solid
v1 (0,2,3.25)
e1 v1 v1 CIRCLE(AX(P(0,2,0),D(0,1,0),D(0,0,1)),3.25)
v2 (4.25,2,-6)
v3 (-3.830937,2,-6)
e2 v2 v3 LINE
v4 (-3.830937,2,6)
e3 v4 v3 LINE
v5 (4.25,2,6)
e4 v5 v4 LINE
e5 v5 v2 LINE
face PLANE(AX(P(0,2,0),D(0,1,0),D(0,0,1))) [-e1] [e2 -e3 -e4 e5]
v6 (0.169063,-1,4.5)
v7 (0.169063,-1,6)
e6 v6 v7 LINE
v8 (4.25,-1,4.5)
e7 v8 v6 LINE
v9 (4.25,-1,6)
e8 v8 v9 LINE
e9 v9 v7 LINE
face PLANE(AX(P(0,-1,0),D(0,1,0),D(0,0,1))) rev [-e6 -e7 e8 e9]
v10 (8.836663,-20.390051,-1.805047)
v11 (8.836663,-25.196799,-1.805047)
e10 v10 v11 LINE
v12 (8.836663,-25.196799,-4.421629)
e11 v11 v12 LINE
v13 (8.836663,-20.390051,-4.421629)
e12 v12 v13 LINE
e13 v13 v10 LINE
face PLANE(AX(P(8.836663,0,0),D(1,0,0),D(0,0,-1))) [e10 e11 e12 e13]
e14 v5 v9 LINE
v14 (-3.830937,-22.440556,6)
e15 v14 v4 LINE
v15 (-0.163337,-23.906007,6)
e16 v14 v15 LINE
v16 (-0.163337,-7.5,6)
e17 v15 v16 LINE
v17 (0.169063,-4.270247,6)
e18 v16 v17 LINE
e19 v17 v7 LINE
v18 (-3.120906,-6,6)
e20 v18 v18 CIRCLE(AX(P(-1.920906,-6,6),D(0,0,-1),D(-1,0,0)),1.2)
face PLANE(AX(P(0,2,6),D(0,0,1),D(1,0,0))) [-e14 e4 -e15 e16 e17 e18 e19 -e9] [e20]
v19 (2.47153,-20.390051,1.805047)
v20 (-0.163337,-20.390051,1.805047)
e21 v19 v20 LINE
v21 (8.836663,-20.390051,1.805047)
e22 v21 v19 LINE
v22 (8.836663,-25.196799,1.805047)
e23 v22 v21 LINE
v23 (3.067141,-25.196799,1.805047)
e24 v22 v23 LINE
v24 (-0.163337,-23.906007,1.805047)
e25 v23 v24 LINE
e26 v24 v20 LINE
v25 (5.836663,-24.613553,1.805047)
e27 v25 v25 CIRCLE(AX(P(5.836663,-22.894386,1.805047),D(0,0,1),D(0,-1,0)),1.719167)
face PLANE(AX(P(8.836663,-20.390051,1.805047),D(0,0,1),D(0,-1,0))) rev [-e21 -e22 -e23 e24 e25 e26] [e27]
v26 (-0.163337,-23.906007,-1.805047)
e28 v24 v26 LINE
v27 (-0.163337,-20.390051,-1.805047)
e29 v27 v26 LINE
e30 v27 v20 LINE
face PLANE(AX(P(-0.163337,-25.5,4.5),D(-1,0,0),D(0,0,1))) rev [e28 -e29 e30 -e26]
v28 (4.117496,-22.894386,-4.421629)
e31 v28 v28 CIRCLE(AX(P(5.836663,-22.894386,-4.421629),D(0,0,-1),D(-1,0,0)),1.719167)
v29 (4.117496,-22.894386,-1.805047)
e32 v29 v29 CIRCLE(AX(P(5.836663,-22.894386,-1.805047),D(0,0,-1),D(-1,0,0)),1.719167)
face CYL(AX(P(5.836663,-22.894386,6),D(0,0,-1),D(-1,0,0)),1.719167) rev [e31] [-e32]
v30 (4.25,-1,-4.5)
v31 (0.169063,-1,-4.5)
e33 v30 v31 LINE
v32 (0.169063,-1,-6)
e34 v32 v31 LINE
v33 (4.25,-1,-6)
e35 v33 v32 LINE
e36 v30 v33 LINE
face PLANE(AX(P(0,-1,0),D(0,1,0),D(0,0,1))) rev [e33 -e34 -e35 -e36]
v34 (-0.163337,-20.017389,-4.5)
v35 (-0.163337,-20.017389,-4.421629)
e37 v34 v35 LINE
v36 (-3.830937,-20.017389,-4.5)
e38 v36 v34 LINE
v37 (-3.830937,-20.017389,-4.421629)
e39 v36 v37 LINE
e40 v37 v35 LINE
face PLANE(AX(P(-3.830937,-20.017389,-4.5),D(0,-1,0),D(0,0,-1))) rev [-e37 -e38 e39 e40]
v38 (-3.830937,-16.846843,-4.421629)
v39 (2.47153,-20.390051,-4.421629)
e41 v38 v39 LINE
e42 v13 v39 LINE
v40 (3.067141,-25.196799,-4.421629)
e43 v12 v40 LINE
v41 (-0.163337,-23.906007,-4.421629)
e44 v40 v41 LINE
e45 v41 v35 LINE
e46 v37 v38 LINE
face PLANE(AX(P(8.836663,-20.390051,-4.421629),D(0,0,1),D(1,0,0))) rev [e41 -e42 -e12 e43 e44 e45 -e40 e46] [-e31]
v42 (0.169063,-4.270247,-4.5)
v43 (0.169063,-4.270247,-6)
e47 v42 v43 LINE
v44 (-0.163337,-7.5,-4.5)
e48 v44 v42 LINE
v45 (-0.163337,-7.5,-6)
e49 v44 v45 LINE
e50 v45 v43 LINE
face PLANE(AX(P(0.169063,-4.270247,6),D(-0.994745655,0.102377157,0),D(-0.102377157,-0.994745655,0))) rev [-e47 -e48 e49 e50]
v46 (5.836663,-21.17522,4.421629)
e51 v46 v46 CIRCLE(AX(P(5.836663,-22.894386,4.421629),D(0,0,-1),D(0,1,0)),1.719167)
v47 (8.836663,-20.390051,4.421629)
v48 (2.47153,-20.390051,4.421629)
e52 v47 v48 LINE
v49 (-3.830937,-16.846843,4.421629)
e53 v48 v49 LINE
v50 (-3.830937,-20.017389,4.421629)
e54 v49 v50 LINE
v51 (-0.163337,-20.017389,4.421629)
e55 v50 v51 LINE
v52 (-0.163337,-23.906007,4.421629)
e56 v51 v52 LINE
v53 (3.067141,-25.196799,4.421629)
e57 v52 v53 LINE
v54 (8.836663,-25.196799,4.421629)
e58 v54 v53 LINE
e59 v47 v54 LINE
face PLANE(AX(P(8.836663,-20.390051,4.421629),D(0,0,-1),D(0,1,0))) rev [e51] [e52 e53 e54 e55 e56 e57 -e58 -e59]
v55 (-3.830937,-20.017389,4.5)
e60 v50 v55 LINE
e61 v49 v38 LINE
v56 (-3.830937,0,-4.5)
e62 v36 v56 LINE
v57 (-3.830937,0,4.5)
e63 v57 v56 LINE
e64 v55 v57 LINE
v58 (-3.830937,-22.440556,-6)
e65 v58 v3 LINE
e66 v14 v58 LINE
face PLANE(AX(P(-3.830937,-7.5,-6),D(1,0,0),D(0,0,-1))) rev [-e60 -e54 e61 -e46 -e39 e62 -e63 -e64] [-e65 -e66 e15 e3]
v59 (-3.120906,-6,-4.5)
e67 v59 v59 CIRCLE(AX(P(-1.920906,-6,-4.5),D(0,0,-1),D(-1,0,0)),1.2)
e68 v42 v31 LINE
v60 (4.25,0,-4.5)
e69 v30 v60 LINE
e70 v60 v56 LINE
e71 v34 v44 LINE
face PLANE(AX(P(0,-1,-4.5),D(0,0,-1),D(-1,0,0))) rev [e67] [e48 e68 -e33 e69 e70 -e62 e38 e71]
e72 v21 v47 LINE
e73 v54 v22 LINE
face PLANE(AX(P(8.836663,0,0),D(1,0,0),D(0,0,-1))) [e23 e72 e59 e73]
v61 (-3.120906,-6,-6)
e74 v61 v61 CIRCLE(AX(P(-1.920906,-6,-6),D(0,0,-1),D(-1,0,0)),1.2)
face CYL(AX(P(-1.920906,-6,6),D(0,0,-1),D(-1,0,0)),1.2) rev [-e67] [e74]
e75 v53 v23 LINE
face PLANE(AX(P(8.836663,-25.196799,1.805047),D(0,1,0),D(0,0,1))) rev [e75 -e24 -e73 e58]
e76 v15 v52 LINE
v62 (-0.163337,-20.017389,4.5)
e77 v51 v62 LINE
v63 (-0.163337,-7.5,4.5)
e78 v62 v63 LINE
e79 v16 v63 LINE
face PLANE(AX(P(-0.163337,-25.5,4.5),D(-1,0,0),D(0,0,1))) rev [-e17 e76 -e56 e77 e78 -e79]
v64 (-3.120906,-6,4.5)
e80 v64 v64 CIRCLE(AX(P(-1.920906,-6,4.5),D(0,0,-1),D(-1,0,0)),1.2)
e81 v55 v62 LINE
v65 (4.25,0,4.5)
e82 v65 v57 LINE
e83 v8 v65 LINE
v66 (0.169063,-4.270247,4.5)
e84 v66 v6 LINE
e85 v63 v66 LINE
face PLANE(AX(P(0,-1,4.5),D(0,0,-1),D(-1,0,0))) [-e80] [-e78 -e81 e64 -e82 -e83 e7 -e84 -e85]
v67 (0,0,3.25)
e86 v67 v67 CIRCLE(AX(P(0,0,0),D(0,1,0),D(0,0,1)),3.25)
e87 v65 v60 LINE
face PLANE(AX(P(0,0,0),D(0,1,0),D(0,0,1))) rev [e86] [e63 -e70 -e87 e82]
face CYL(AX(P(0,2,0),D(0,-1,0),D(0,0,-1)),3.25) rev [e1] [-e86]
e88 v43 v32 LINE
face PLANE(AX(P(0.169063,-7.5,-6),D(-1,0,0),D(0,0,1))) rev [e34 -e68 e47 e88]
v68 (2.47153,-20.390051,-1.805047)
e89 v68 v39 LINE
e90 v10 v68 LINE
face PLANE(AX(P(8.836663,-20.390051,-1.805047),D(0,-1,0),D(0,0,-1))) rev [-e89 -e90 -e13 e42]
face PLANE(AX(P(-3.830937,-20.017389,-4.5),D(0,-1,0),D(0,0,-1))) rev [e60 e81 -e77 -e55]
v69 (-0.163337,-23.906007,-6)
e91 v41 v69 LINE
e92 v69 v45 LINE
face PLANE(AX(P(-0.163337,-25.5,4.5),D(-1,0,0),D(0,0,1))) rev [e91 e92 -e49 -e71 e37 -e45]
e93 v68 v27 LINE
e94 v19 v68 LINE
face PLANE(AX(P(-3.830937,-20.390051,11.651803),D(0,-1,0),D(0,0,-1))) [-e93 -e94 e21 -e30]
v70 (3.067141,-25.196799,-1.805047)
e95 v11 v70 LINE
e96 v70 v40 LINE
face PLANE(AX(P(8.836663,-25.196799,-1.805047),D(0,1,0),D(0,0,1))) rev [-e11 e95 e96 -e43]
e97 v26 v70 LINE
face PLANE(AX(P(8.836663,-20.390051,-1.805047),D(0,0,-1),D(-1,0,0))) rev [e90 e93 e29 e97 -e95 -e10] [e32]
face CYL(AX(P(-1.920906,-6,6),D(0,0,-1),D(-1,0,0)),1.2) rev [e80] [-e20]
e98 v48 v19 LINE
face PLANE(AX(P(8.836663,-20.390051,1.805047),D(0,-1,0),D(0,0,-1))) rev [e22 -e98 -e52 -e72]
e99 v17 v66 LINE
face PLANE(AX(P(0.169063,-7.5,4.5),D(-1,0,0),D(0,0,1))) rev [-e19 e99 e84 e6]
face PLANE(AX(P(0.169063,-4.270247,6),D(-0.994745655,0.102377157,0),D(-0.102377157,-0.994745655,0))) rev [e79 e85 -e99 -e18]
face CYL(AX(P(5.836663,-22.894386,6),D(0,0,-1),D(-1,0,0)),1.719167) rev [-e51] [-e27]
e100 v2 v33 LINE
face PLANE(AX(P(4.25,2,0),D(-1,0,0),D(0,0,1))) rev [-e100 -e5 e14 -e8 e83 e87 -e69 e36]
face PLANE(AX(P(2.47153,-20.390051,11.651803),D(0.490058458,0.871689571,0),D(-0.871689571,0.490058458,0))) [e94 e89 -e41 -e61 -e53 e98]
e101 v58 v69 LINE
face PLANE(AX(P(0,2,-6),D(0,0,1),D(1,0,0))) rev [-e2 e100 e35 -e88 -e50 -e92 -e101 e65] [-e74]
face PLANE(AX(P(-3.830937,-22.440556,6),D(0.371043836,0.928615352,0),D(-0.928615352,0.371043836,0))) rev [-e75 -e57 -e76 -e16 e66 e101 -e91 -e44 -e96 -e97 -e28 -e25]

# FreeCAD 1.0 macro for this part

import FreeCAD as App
import Part
import Sketcher

V = App.Vector
Q = App.Units.Quantity


def add_polygon(sketch, points):
    """Adds a closed chain of lines whose ends are joined by coincident constraints."""
    first, n = sketch.GeometryCount, len(points)
    for a, b in zip(points, points[1:] + points[:1]):
        sketch.addGeometry(Part.LineSegment(App.Vector(*a, 0), App.Vector(*b, 0)), False)
    for i in range(n):
        sketch.addConstraint(Sketcher.Constraint("Coincident", first + i, 2, first + (i + 1) % n, 1))

doc = App.newDocument("Part")
body = doc.addObject("PartDesign::Body", "Body")

sketch1 = doc.addObject("Sketcher::SketchObject", "Sketch")
body.addObject(sketch1)
sketch1.AttachmentSupport = (doc.XZ_Plane, [""])
sketch1.MapMode = "FlatFace"
add_polygon(sketch1, [(-4.25, 6), (4.25, 6), (4.25, -6), (-4.25, -6)])
sketch1.addGeometry(Part.Circle(V(0, 0, 0), V(0, 0, 1), 3.25), False)
sketch1.addConstraint([
    Sketcher.Constraint("Horizontal", 0),
    Sketcher.Constraint("Vertical", 1),
    Sketcher.Constraint("Horizontal", 2),
    Sketcher.Constraint("Vertical", 3),
    Sketcher.Constraint("Coincident", 4, 3, -1, 1),
    Sketcher.Constraint("Symmetric", 0, 2, 2, 2, -1, 1),
    Sketcher.Constraint("Diameter", 4, Q("6.5 mm")),
    Sketcher.Constraint("DistanceY", 1, 2, 1, 1, Q("12 mm")),
    Sketcher.Constraint("DistanceX", 0, 1, 0, 2, Q("8.5 mm")),
])
pad1 = doc.addObject("PartDesign::Pad", "Pad")
body.addObject(pad1)
pad1.Profile = sketch1
pad1.Length = 2
pad1.Reversed = True

sketch2 = doc.addObject("Sketcher::SketchObject", "Sketch001")
body.addObject(sketch2)
sketch2.AttachmentSupport = (doc.XZ_Plane, [""])
sketch2.MapMode = "FlatFace"
add_polygon(sketch2, [(-4.25, 4.5), (-4.25, 6), (4.25, 6), (4.25, 4.5)])
add_polygon(sketch2, [(-4.25, -6), (-4.25, -4.5), (4.25, -4.5), (4.25, -6)])
sketch2.addConstraint([
    Sketcher.Constraint("Vertical", 0),
    Sketcher.Constraint("Horizontal", 1),
    Sketcher.Constraint("Vertical", 2),
    Sketcher.Constraint("Horizontal", 3),
    Sketcher.Constraint("Vertical", 4),
    Sketcher.Constraint("Horizontal", 5),
    Sketcher.Constraint("Vertical", 6),
    Sketcher.Constraint("Horizontal", 7),
    Sketcher.Constraint("Symmetric", 2, 2, 4, 2, -1, 1),
    Sketcher.Constraint("Symmetric", 0, 2, 6, 2, -1, 1),
    Sketcher.Constraint("Vertical", 3, 2, 4, 2),
    Sketcher.Constraint("DistanceX", 1, 1, 1, 2, Q("8.5 mm")),
    Sketcher.Constraint("DistanceY", 0, 1, 0, 2, Q("1.5 mm")),
    Sketcher.Constraint("DistanceY", -1, 1, 0, 2, Q("6 mm")),
])
pad2 = doc.addObject("PartDesign::Pad", "Pad001")
body.addObject(pad2)
pad2.Profile = sketch2
pad2.Length = 1

sketch3 = doc.addObject("Sketcher::SketchObject", "Sketch002")
body.addObject(sketch3)
sketch3.AttachmentSupport = (doc.XZ_Plane, [""])
sketch3.MapMode = "FlatFace"
sketch3.AttachmentOffset = App.Placement(V(0, 0, 1), App.Rotation())
add_polygon(sketch3, [(-3.830937, -4.5), (-3.830937, -6), (0.169063, -6), (0.169063, -4.5)])
add_polygon(sketch3, [(-3.830937, 6), (-3.830937, 4.5), (0.169063, 4.5), (0.169063, 6)])
sketch3.addConstraint([
    Sketcher.Constraint("Vertical", 0),
    Sketcher.Constraint("Horizontal", 1),
    Sketcher.Constraint("Vertical", 2),
    Sketcher.Constraint("Horizontal", 3),
    Sketcher.Constraint("Vertical", 4),
    Sketcher.Constraint("Horizontal", 5),
    Sketcher.Constraint("Vertical", 6),
    Sketcher.Constraint("Horizontal", 7),
    Sketcher.Constraint("Symmetric", 3, 2, 4, 2, -1),
    Sketcher.Constraint("Symmetric", 1, 2, 6, 2, -1),
    Sketcher.Constraint("DistanceX", 1, 1, 1, 2, Q("4 mm")),
    Sketcher.Constraint("DistanceY", 0, 2, 0, 1, Q("1.5 mm")),
    Sketcher.Constraint("DistanceY", 0, 2, -1, 1, Q("6 mm")),
    Sketcher.Constraint("DistanceX", 0, 2, -1, 1, Q("3.830937 mm")),
])
pad3 = doc.addObject("PartDesign::Pad", "Pad002")
body.addObject(pad3)
pad3.Profile = sketch3
pad3.Length = 6.5

sketch4 = doc.addObject("Sketcher::SketchObject", "Sketch003")
body.addObject(sketch4)
sketch4.AttachmentSupport = (doc.XY_Plane, [""])
sketch4.MapMode = "FlatFace"
sketch4.AttachmentOffset = App.Placement(V(0, 0, -6), App.Rotation())
add_polygon(sketch4, [(-0.163337, -7.5), (0.169063, -4.270247), (0.169063, -7.5)])
sketch4.addConstraint([
    Sketcher.Constraint("Vertical", 1),
    Sketcher.Constraint("Horizontal", 2),
    Sketcher.Constraint("DistanceY", 1, 2, -1, 1, Q("7.5 mm")),
    Sketcher.Constraint("DistanceX", 2, 2, 2, 1, Q("0.332399 mm")),
    Sketcher.Constraint("DistanceY", 1, 2, 1, 1, Q("3.229753 mm")),
    Sketcher.Constraint("DistanceX", -1, 1, 0, 2, Q("0.169063 mm")),
])
pocket1 = doc.addObject("PartDesign::Pocket", "Pocket")
body.addObject(pocket1)
pocket1.Profile = sketch4
pocket1.Type = "ThroughAll"
pocket1.Reversed = True

sketch5 = doc.addObject("Sketcher::SketchObject", "Sketch004")
body.addObject(sketch5)
sketch5.AttachmentSupport = (doc.XY_Plane, [""])
sketch5.MapMode = "FlatFace"
sketch5.AttachmentOffset = App.Placement(V(0, 0, -6), App.Rotation())
sketch5.addGeometry(Part.Circle(V(-1.920906, -6, 0), V(0, 0, 1), 1.2), False)
sketch5.addConstraint([
    Sketcher.Constraint("Diameter", 0, Q("2.4 mm")),
    Sketcher.Constraint("DistanceY", 0, 3, -1, 1, Q("6 mm")),
    Sketcher.Constraint("DistanceX", 0, 3, -1, 1, Q("1.920906 mm")),
])
pocket2 = doc.addObject("PartDesign::Pocket", "Pocket001")
body.addObject(pocket2)
pocket2.Profile = sketch5
pocket2.Type = "ThroughAll"
pocket2.Reversed = True

sketch6 = doc.addObject("Sketcher::SketchObject", "Sketch005")
body.addObject(sketch6)
sketch6.AttachmentSupport = (doc.XY_Plane, [""])
sketch6.MapMode = "FlatFace"
sketch6.AttachmentOffset = App.Placement(V(0, 0, -6), App.Rotation())
add_polygon(sketch6, [(-3.830937, 2), (-3.830937, -1), (-4.25, -1), (-4.25, 2)])
sketch6.addConstraint([
    Sketcher.Constraint("Vertical", 0),
    Sketcher.Constraint("Horizontal", 1),
    Sketcher.Constraint("Vertical", 2),
    Sketcher.Constraint("Horizontal", 3),
    Sketcher.Constraint("DistanceY", 0, 2, 0, 1, Q("3 mm")),
    Sketcher.Constraint("DistanceY", 0, 2, -1, 1, Q("1 mm")),
    Sketcher.Constraint("DistanceX", 1, 2, -1, 1, Q("4.25 mm")),
    Sketcher.Constraint("DistanceX", 1, 2, 1, 1, Q("0.419063 mm")),
])
pocket3 = doc.addObject("PartDesign::Pocket", "Pocket002")
body.addObject(pocket3)
pocket3.Profile = sketch6
pocket3.Length = 12
pocket3.Reversed = True

sketch7 = doc.addObject("Sketcher::SketchObject", "Sketch006")
body.addObject(sketch7)
sketch7.AttachmentSupport = (doc.XZ_Plane, [""])
sketch7.MapMode = "FlatFace"
sketch7.AttachmentOffset = App.Placement(V(0, 0, 7.5), App.Rotation())
add_polygon(sketch7, [(-3.830937, 6), (-3.830937, 4.5), (-0.163337, 4.5), (-0.163337, 6)])
add_polygon(sketch7, [(-3.830937, -4.5), (-3.830937, -6), (-0.163337, -6), (-0.163337, -4.5)])
sketch7.addConstraint([
    Sketcher.Constraint("Vertical", 0),
    Sketcher.Constraint("Horizontal", 1),
    Sketcher.Constraint("Vertical", 2),
    Sketcher.Constraint("Horizontal", 3),
    Sketcher.Constraint("Vertical", 4),
    Sketcher.Constraint("Horizontal", 5),
    Sketcher.Constraint("Vertical", 6),
    Sketcher.Constraint("Horizontal", 7),
    Sketcher.Constraint("Symmetric", 3, 2, 4, 2, -1),
    Sketcher.Constraint("Symmetric", 1, 2, 6, 2, -1),
    Sketcher.Constraint("DistanceY", 0, 2, 0, 1, Q("1.5 mm")),
    Sketcher.Constraint("DistanceY", -1, 1, 2, 2, Q("6 mm")),
    Sketcher.Constraint("DistanceX", 1, 1, 1, 2, Q("3.667601 mm")),
    Sketcher.Constraint("DistanceX", 0, 2, -1, 1, Q("3.830937 mm")),
])
pad4 = doc.addObject("PartDesign::Pad", "Pad003")
body.addObject(pad4)
pad4.Profile = sketch7
pad4.Length = 18

sketch8 = doc.addObject("Sketcher::SketchObject", "Sketch007")
body.addObject(sketch8)
sketch8.AttachmentSupport = (doc.XY_Plane, [""])
sketch8.MapMode = "FlatFace"
sketch8.AttachmentOffset = App.Placement(V(0, 0, 4.5), App.Rotation())
add_polygon(sketch8, [(-0.163337, -20.017389), (-0.163337, -25.5), (-3.830937, -25.5), (-3.830937, -20.017389)])
sketch8.addConstraint([
    Sketcher.Constraint("Vertical", 0),
    Sketcher.Constraint("Horizontal", 1),
    Sketcher.Constraint("Vertical", 2),
    Sketcher.Constraint("Horizontal", 3),
    Sketcher.Constraint("DistanceY", 0, 2, -1, 1, Q("25.5 mm")),
    Sketcher.Constraint("DistanceX", 1, 2, 1, 1, Q("3.667601 mm")),
    Sketcher.Constraint("DistanceY", 0, 2, 0, 1, Q("5.482611 mm")),
    Sketcher.Constraint("DistanceX", 0, 2, -1, 1, Q("0.163337 mm")),
])
pad5 = doc.addObject("PartDesign::Pad", "Pad004")
body.addObject(pad5)
pad5.Profile = sketch8
pad5.Length = 9
pad5.Reversed = True

sketch9 = doc.addObject("Sketcher::SketchObject", "Sketch008")
body.addObject(sketch9)
sketch9.AttachmentSupport = (doc.YZ_Plane, [""])
sketch9.MapMode = "FlatFace"
sketch9.AttachmentOffset = App.Placement(V(0, 0, -0.163337), App.Rotation())
add_polygon(sketch9, [(-20.390051, -1.805047), (-25.196799, -1.805047), (-25.196799, -4.421629), (-20.390051, -4.421629)])
add_polygon(sketch9, [(-20.390051, 4.421629), (-25.196799, 4.421629), (-25.196799, 1.805047), (-20.390051, 1.805047)])
sketch9.addConstraint([
    Sketcher.Constraint("Horizontal", 0),
    Sketcher.Constraint("Vertical", 1),
    Sketcher.Constraint("Horizontal", 2),
    Sketcher.Constraint("Vertical", 3),
    Sketcher.Constraint("Horizontal", 4),
    Sketcher.Constraint("Vertical", 5),
    Sketcher.Constraint("Horizontal", 6),
    Sketcher.Constraint("Vertical", 7),
    Sketcher.Constraint("Symmetric", 1, 2, 4, 2, -1),
    Sketcher.Constraint("Symmetric", 3, 2, 6, 2, -1),
    Sketcher.Constraint("DistanceY", 1, 2, 1, 1, Q("2.616582 mm")),
    Sketcher.Constraint("DistanceX", 0, 2, -1, 1, Q("25.196799 mm")),
    Sketcher.Constraint("DistanceX", 0, 2, 0, 1, Q("4.806748 mm")),
    Sketcher.Constraint("DistanceY", 1, 2, -1, 1, Q("4.421629 mm")),
])
pad6 = doc.addObject("PartDesign::Pad", "Pad005")
body.addObject(pad6)
pad6.Profile = sketch9
pad6.Length = 9

sketch10 = doc.addObject("Sketcher::SketchObject", "Sketch009")
body.addObject(sketch10)
sketch10.AttachmentSupport = (doc.XY_Plane, [""])
sketch10.MapMode = "FlatFace"
sketch10.AttachmentOffset = App.Placement(V(0, 0, -4.421629), App.Rotation())
sketch10.addGeometry(Part.Circle(V(5.836663, -22.894386, 0), V(0, 0, 1), 1.719167), False)
sketch10.addConstraint([
    Sketcher.Constraint("Diameter", 0, Q("3.438334 mm")),
    Sketcher.Constraint("DistanceX", -1, 1, 0, 3, Q("5.836663 mm")),
    Sketcher.Constraint("DistanceY", 0, 3, -1, 1, Q("22.894386 mm")),
])
pocket4 = doc.addObject("PartDesign::Pocket", "Pocket003")
body.addObject(pocket4)
pocket4.Profile = sketch10
pocket4.Type = "ThroughAll"
pocket4.Reversed = True

sketch11 = doc.addObject("Sketcher::SketchObject", "Sketch010")
body.addObject(sketch11)
sketch11.AttachmentSupport = (doc.XY_Plane, [""])
sketch11.MapMode = "FlatFace"
sketch11.AttachmentOffset = App.Placement(V(0, 0, -6), App.Rotation())
add_polygon(sketch11, [(-3.830937, -22.440556), (3.067141, -25.196799), (-0.381898, -26.676483), (-3.830937, -26.676483)])
sketch11.addConstraint([
    Sketcher.Constraint("Horizontal", 2),
    Sketcher.Constraint("Vertical", 3),
    Sketcher.Constraint("Angle", 0, Q("-21.780008 deg")),
    Sketcher.Constraint("Angle", 1, Q("-156.780008 deg")),
    Sketcher.Constraint("DistanceX", 2, 2, 2, 1, Q("3.449039 mm")),
    Sketcher.Constraint("DistanceY", 0, 2, -1, 1, Q("25.196799 mm")),
    Sketcher.Constraint("DistanceX", 1, 2, -1, 1, Q("0.381898 mm")),
    Sketcher.Constraint("Distance", 0, Q("7.428348 mm")),
])
pocket5 = doc.addObject("PartDesign::Pocket", "Pocket004")
body.addObject(pocket5)
pocket5.Profile = sketch11
pocket5.Type = "ThroughAll"
pocket5.Reversed = True

sketch12 = doc.addObject("Sketcher::SketchObject", "Sketch011")
body.addObject(sketch12)
sketch12.AttachmentSupport = (doc.XY_Plane, [""])
sketch12.MapMode = "FlatFace"
sketch12.AttachmentOffset = App.Placement(V(0, 0, -4.421629), App.Rotation())
add_polygon(sketch12, [(-3.830937, -16.846843), (2.47153, -20.390051), (-3.830937, -20.390051)])
sketch12.addConstraint([
    Sketcher.Constraint("Horizontal", 1),
    Sketcher.Constraint("Vertical", 2),
    Sketcher.Constraint("DistanceX", 1, 2, 1, 1, Q("6.302467 mm")),
    Sketcher.Constraint("DistanceY", 2, 1, 2, 2, Q("3.543208 mm")),
    Sketcher.Constraint("DistanceX", -1, 1, 0, 2, Q("2.47153 mm")),
    Sketcher.Constraint("DistanceY", 0, 2, -1, 1, Q("20.390051 mm")),
])
pad7 = doc.addObject("PartDesign::Pad", "Pad006")
body.addObject(pad7)
pad7.Profile = sketch12
pad7.Length = 8.843258

doc.recompute()
